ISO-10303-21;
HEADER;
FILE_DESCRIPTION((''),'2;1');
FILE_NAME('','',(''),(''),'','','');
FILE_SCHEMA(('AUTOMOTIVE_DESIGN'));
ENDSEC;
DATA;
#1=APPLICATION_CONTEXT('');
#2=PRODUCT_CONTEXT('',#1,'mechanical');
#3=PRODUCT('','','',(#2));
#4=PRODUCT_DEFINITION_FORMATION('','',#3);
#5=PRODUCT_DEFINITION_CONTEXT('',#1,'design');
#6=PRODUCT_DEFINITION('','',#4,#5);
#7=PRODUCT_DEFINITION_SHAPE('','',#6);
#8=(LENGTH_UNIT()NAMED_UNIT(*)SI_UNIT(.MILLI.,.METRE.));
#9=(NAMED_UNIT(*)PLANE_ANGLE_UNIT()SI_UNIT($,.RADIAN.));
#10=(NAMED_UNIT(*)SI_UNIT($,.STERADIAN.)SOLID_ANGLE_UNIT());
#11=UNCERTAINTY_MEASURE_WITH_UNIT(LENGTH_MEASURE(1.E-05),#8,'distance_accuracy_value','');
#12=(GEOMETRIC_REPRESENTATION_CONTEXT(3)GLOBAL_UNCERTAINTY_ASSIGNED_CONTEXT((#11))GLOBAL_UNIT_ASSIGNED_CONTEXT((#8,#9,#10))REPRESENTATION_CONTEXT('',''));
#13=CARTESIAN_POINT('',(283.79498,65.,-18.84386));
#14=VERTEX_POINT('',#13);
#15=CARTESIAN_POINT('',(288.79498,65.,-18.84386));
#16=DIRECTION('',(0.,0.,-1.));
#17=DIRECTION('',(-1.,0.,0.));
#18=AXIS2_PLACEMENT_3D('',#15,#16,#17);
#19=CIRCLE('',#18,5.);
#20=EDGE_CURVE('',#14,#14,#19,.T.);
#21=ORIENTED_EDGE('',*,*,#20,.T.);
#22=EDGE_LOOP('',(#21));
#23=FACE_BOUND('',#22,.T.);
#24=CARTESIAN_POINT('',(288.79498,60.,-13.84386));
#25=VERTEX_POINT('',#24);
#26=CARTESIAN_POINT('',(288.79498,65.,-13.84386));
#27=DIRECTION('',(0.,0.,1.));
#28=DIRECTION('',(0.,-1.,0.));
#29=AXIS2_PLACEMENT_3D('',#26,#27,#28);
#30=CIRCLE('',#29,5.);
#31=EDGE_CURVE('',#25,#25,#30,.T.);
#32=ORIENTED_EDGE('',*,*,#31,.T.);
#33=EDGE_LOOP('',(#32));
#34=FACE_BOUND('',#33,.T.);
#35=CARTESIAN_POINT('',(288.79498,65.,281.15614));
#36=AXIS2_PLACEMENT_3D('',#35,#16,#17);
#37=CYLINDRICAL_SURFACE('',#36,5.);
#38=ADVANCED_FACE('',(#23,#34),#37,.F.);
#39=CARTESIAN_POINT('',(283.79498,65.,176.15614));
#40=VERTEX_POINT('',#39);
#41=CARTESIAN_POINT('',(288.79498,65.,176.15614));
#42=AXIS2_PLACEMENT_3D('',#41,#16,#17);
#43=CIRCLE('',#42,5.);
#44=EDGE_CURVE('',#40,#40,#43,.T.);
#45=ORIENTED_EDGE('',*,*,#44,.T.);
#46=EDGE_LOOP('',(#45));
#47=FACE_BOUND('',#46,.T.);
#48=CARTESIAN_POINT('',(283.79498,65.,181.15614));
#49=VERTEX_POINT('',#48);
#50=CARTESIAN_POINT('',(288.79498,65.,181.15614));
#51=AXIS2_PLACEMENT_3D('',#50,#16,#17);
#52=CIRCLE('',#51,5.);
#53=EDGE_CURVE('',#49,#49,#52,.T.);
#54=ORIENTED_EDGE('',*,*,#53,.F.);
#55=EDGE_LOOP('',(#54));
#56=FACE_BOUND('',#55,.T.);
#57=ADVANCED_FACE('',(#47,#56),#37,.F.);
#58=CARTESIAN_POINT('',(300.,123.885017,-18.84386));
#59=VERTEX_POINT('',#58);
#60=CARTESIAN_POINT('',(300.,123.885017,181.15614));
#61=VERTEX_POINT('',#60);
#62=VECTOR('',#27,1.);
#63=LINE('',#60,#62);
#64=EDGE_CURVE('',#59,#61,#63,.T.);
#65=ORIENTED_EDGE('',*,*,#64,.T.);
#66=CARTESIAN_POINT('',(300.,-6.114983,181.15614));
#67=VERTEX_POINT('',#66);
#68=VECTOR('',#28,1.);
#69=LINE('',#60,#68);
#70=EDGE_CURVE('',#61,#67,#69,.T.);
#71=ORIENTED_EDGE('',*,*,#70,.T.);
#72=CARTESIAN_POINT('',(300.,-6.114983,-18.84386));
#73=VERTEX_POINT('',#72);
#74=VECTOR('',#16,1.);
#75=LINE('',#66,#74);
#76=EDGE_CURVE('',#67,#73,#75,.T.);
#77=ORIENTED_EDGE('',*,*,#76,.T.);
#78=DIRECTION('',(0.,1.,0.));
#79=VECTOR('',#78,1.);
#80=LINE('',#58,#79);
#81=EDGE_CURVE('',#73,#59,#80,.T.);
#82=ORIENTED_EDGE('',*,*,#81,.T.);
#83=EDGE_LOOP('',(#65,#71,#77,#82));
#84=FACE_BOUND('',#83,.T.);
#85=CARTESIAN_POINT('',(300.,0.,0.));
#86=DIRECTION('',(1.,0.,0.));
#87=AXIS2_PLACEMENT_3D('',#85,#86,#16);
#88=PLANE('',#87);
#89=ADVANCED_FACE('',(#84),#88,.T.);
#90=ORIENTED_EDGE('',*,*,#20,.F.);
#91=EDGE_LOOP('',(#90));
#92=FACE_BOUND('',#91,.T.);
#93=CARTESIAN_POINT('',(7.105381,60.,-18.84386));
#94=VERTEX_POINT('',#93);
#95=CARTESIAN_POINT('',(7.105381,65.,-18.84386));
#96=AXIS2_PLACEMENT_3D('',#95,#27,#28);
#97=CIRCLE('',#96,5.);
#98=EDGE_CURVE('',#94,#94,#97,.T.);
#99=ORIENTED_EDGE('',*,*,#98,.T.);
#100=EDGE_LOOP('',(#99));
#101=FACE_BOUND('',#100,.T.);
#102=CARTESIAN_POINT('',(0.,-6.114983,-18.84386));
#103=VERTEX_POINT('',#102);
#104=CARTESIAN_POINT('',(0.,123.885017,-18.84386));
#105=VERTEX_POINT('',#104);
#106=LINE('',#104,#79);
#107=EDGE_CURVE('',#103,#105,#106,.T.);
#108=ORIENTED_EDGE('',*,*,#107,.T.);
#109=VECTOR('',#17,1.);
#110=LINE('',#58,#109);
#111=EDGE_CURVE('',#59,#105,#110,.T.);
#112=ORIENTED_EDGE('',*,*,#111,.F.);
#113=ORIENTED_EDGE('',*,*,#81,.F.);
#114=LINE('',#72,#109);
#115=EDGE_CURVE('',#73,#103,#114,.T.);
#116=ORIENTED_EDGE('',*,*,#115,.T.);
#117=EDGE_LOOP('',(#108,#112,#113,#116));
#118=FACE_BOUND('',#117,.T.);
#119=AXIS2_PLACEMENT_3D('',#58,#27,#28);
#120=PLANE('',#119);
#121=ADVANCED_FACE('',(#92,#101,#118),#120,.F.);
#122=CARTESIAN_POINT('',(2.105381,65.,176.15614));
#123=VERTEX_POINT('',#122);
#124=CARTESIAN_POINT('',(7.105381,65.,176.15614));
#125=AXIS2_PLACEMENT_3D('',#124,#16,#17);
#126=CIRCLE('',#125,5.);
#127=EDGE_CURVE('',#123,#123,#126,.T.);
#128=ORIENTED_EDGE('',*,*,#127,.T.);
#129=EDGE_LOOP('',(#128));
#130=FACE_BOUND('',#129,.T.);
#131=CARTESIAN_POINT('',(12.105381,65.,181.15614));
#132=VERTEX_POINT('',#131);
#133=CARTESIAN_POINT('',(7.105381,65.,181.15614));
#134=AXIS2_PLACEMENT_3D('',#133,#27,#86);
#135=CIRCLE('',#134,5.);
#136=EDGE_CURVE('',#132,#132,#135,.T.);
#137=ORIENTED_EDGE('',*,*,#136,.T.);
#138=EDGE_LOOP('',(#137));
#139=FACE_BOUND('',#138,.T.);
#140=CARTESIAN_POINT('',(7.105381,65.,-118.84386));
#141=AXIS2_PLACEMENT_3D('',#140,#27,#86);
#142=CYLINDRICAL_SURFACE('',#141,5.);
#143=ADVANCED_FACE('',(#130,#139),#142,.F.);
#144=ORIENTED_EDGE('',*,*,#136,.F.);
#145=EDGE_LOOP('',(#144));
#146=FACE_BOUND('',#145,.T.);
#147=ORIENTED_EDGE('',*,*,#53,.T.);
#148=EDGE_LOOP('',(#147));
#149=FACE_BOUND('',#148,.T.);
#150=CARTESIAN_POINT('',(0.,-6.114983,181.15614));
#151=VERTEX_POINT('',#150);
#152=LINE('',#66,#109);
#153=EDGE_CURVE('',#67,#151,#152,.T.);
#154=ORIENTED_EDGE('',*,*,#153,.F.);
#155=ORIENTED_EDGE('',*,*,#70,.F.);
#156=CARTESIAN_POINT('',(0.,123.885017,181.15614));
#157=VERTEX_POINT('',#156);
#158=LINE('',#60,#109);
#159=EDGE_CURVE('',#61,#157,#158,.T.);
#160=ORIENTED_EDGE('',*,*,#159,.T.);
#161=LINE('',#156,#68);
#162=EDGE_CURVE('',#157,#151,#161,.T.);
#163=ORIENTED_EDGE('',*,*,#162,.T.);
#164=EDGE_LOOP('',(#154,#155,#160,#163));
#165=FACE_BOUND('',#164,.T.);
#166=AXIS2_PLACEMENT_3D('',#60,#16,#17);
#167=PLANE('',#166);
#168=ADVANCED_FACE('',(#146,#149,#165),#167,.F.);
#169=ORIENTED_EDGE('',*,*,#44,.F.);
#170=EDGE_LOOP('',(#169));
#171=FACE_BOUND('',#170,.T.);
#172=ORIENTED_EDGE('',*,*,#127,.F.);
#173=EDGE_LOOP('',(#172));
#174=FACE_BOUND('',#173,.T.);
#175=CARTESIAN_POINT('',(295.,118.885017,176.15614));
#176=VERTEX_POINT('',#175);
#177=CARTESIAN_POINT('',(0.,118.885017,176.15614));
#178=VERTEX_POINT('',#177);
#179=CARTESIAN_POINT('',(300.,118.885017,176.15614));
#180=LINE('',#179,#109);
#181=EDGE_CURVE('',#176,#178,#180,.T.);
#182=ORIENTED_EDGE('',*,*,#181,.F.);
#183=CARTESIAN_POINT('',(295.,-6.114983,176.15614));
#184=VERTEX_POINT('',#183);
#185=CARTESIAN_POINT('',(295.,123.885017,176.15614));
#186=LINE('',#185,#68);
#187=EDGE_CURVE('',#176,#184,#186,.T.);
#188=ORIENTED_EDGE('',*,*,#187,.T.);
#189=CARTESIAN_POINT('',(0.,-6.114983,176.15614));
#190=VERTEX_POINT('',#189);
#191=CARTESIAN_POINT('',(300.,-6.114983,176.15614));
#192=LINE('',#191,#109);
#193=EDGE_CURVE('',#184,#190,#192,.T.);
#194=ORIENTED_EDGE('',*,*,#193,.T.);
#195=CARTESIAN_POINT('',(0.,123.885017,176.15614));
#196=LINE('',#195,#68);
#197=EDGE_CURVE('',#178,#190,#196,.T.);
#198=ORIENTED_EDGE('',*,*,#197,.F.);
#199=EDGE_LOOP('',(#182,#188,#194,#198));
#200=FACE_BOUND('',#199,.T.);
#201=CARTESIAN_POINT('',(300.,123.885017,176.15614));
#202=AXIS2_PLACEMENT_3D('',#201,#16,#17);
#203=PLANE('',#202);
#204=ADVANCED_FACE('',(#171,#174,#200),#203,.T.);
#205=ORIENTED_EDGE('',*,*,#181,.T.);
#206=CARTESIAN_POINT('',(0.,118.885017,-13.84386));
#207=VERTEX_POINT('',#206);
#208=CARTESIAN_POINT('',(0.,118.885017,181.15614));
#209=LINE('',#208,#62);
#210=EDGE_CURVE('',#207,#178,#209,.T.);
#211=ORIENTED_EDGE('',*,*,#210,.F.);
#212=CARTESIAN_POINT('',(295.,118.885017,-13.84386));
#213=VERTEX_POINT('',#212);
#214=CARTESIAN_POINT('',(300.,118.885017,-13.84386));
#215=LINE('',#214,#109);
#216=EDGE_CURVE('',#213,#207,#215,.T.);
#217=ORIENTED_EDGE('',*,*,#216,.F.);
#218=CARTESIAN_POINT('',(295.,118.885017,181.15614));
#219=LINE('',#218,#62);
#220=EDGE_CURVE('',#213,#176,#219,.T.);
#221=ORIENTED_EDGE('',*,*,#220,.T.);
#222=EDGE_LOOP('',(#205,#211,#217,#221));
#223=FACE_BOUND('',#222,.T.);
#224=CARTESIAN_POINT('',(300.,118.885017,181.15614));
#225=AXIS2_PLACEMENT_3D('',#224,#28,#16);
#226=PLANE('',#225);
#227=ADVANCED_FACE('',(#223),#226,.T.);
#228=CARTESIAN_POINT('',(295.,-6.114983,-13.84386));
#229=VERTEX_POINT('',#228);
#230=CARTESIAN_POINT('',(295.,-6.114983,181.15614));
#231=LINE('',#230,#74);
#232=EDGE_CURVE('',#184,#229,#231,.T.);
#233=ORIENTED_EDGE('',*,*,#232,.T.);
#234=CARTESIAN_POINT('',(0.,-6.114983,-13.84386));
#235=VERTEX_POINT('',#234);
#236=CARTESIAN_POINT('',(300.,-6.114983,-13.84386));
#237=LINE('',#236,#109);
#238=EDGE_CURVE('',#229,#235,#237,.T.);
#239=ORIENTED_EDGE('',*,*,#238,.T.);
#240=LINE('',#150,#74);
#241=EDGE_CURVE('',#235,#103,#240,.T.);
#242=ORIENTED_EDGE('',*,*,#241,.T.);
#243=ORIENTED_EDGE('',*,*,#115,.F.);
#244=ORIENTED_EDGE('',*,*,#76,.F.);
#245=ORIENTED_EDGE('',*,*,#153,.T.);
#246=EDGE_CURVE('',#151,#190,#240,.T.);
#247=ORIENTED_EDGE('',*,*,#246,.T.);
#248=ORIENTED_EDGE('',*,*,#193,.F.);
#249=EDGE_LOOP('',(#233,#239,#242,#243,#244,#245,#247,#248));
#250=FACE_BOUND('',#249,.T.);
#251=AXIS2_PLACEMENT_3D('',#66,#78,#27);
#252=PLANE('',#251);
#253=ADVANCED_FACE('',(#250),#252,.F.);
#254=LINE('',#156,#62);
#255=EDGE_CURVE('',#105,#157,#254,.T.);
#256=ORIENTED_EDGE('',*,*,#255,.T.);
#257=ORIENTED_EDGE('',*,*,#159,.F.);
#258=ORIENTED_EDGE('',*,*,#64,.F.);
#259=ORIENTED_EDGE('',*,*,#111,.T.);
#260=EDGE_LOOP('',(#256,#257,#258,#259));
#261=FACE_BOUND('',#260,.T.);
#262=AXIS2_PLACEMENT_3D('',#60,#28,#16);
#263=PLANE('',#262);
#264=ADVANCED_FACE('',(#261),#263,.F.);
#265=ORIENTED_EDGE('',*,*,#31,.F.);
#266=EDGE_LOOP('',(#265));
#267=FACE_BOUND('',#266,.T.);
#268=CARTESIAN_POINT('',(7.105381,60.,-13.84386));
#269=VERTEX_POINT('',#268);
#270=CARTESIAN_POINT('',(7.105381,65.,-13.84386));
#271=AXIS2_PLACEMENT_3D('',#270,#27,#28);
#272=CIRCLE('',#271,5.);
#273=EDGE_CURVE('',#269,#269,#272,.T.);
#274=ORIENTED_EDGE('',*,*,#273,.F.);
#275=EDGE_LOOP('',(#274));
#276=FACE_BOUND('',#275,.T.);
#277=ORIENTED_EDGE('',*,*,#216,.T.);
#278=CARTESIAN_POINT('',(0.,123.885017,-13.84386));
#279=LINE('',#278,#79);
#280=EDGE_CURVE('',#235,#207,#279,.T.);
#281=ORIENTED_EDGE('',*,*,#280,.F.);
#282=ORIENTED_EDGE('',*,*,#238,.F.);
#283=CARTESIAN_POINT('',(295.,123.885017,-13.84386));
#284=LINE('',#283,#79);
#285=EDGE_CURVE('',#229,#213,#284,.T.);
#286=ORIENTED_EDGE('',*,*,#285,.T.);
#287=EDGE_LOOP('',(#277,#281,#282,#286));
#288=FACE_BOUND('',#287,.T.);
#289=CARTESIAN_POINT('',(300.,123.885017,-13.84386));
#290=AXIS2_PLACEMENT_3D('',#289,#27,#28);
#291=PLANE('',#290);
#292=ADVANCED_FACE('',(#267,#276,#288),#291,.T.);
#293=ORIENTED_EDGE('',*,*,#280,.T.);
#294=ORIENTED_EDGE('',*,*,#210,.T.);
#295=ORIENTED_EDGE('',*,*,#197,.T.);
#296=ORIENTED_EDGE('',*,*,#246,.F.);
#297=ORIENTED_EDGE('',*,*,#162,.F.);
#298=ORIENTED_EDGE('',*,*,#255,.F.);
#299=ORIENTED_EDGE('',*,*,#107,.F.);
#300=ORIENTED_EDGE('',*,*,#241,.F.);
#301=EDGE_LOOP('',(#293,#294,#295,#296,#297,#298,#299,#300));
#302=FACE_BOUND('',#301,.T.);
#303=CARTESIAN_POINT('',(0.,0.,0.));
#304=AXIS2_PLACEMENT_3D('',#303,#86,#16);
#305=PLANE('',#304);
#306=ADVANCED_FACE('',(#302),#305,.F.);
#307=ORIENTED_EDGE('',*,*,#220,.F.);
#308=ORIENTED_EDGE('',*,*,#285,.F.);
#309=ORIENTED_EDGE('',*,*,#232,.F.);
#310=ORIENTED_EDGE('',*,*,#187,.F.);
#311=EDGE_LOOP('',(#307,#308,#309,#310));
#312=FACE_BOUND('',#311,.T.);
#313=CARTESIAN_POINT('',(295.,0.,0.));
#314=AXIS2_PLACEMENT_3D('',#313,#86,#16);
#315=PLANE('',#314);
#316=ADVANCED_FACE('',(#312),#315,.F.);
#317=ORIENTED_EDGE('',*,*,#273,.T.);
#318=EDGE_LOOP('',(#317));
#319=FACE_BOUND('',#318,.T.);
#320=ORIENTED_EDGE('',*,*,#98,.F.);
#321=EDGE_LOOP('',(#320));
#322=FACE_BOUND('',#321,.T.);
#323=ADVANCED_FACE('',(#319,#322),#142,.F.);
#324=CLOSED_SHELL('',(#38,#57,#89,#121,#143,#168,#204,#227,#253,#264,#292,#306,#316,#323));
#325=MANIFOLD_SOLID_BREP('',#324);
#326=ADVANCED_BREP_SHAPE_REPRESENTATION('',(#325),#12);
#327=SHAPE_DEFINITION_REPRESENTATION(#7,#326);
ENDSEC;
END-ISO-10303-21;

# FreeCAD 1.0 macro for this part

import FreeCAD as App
import Part
import Sketcher

V = App.Vector
Q = App.Units.Quantity


def faces_at(feature, points):
    """Names of the faces that lie closest to the given points."""
    faces = feature.Shape.Faces
    near = lambda p: min(range(len(faces)), key=lambda i: faces[i].distToShape(Part.Vertex(*p))[0])
    return sorted({f"Face{near(p) + 1}" for p in points})


def add_polygon(sketch, points):
    """Adds a closed chain of lines whose ends are joined by coincident constraints."""
    first, n = sketch.GeometryCount, len(points)
    for a, b in zip(points, points[1:] + points[:1]):
        sketch.addGeometry(Part.LineSegment(App.Vector(*a, 0), App.Vector(*b, 0)), False)
    for i in range(n):
        sketch.addConstraint(Sketcher.Constraint("Coincident", first + i, 2, first + (i + 1) % n, 1))

doc = App.newDocument("Part")
body = doc.addObject("PartDesign::Body", "Body")

sketch1 = body.newObject("Sketcher::SketchObject", "Sketch")
sketch1.AttachmentSupport = (doc.getObject("YZ_Plane"), [""])
sketch1.MapMode = "FlatFace"
add_polygon(sketch1, [(124, 181), (-6, 181), (-6, -19), (124, -19)])
sketch1.addConstraint([
    Sketcher.Constraint("Horizontal", 0),
    Sketcher.Constraint("Vertical", 1),
    Sketcher.Constraint("Horizontal", 2),
    Sketcher.Constraint("Vertical", 3),
    Sketcher.Constraint("DistanceX", 0, 2, 0, 1, Q("130 mm")),
    Sketcher.Constraint("DistanceY", 1, 2, 1, 1, Q("200 mm")),
    Sketcher.Constraint("DistanceY", -1, 1, 0, 2, Q("181.15614 mm")),
    Sketcher.Constraint("DistanceX", 0, 2, -1, 1, Q("6.114983 mm")),
])
pad1 = body.newObject("PartDesign::Pad", "Pad")
pad1.Profile = sketch1
pad1.Length = 300
doc.recompute()

thickness = body.newObject("PartDesign::Thickness", "Thickness")
thickness.Base = (pad1, faces_at(pad1, [(0, 58.885, 81.156), (150, -6.115, 81.156)]))
thickness.Value = 5
thickness.Reversed = True
thickness.Join = "Intersection"

sketch2 = body.newObject("Sketcher::SketchObject", "Sketch001")
sketch2.AttachmentSupport = (doc.getObject("XY_Plane"), [""])
sketch2.MapMode = "FlatFace"
sketch2.AttachmentOffset = App.Placement(V(0, 0, -18.84386), App.Rotation())
sketch2.addGeometry(Part.Circle(V(289, 65, 0), V(0, 0, 1), 5), False)
sketch2.addConstraint([
    Sketcher.Constraint("Diameter", 0, Q("10 mm")),
    Sketcher.Constraint("DistanceY", -1, 1, 0, 3, Q("65 mm")),
    Sketcher.Constraint("DistanceX", -1, 1, 0, 3, Q("288.79498 mm")),
])
pocket1 = body.newObject("PartDesign::Pocket", "Pocket")
pocket1.Profile = sketch2
pocket1.Length = 300
pocket1.Reversed = True

sketch3 = body.newObject("Sketcher::SketchObject", "Sketch002")
sketch3.AttachmentSupport = (doc.getObject("XY_Plane"), [""])
sketch3.MapMode = "FlatFace"
sketch3.AttachmentOffset = App.Placement(V(0, 0, 181.15614), App.Rotation())
sketch3.addGeometry(Part.Circle(V(7, 65, 0), V(0, 0, 1), 5), False)
sketch3.addConstraint([
    Sketcher.Constraint("Diameter", 0, Q("10 mm")),
    Sketcher.Constraint("DistanceY", -1, 1, 0, 3, Q("65 mm")),
    Sketcher.Constraint("DistanceX", -1, 1, 0, 3, Q("7.105381 mm")),
])
pocket2 = body.newObject("PartDesign::Pocket", "Pocket001")
pocket2.Profile = sketch3
pocket2.Length = 300

doc.recompute()
